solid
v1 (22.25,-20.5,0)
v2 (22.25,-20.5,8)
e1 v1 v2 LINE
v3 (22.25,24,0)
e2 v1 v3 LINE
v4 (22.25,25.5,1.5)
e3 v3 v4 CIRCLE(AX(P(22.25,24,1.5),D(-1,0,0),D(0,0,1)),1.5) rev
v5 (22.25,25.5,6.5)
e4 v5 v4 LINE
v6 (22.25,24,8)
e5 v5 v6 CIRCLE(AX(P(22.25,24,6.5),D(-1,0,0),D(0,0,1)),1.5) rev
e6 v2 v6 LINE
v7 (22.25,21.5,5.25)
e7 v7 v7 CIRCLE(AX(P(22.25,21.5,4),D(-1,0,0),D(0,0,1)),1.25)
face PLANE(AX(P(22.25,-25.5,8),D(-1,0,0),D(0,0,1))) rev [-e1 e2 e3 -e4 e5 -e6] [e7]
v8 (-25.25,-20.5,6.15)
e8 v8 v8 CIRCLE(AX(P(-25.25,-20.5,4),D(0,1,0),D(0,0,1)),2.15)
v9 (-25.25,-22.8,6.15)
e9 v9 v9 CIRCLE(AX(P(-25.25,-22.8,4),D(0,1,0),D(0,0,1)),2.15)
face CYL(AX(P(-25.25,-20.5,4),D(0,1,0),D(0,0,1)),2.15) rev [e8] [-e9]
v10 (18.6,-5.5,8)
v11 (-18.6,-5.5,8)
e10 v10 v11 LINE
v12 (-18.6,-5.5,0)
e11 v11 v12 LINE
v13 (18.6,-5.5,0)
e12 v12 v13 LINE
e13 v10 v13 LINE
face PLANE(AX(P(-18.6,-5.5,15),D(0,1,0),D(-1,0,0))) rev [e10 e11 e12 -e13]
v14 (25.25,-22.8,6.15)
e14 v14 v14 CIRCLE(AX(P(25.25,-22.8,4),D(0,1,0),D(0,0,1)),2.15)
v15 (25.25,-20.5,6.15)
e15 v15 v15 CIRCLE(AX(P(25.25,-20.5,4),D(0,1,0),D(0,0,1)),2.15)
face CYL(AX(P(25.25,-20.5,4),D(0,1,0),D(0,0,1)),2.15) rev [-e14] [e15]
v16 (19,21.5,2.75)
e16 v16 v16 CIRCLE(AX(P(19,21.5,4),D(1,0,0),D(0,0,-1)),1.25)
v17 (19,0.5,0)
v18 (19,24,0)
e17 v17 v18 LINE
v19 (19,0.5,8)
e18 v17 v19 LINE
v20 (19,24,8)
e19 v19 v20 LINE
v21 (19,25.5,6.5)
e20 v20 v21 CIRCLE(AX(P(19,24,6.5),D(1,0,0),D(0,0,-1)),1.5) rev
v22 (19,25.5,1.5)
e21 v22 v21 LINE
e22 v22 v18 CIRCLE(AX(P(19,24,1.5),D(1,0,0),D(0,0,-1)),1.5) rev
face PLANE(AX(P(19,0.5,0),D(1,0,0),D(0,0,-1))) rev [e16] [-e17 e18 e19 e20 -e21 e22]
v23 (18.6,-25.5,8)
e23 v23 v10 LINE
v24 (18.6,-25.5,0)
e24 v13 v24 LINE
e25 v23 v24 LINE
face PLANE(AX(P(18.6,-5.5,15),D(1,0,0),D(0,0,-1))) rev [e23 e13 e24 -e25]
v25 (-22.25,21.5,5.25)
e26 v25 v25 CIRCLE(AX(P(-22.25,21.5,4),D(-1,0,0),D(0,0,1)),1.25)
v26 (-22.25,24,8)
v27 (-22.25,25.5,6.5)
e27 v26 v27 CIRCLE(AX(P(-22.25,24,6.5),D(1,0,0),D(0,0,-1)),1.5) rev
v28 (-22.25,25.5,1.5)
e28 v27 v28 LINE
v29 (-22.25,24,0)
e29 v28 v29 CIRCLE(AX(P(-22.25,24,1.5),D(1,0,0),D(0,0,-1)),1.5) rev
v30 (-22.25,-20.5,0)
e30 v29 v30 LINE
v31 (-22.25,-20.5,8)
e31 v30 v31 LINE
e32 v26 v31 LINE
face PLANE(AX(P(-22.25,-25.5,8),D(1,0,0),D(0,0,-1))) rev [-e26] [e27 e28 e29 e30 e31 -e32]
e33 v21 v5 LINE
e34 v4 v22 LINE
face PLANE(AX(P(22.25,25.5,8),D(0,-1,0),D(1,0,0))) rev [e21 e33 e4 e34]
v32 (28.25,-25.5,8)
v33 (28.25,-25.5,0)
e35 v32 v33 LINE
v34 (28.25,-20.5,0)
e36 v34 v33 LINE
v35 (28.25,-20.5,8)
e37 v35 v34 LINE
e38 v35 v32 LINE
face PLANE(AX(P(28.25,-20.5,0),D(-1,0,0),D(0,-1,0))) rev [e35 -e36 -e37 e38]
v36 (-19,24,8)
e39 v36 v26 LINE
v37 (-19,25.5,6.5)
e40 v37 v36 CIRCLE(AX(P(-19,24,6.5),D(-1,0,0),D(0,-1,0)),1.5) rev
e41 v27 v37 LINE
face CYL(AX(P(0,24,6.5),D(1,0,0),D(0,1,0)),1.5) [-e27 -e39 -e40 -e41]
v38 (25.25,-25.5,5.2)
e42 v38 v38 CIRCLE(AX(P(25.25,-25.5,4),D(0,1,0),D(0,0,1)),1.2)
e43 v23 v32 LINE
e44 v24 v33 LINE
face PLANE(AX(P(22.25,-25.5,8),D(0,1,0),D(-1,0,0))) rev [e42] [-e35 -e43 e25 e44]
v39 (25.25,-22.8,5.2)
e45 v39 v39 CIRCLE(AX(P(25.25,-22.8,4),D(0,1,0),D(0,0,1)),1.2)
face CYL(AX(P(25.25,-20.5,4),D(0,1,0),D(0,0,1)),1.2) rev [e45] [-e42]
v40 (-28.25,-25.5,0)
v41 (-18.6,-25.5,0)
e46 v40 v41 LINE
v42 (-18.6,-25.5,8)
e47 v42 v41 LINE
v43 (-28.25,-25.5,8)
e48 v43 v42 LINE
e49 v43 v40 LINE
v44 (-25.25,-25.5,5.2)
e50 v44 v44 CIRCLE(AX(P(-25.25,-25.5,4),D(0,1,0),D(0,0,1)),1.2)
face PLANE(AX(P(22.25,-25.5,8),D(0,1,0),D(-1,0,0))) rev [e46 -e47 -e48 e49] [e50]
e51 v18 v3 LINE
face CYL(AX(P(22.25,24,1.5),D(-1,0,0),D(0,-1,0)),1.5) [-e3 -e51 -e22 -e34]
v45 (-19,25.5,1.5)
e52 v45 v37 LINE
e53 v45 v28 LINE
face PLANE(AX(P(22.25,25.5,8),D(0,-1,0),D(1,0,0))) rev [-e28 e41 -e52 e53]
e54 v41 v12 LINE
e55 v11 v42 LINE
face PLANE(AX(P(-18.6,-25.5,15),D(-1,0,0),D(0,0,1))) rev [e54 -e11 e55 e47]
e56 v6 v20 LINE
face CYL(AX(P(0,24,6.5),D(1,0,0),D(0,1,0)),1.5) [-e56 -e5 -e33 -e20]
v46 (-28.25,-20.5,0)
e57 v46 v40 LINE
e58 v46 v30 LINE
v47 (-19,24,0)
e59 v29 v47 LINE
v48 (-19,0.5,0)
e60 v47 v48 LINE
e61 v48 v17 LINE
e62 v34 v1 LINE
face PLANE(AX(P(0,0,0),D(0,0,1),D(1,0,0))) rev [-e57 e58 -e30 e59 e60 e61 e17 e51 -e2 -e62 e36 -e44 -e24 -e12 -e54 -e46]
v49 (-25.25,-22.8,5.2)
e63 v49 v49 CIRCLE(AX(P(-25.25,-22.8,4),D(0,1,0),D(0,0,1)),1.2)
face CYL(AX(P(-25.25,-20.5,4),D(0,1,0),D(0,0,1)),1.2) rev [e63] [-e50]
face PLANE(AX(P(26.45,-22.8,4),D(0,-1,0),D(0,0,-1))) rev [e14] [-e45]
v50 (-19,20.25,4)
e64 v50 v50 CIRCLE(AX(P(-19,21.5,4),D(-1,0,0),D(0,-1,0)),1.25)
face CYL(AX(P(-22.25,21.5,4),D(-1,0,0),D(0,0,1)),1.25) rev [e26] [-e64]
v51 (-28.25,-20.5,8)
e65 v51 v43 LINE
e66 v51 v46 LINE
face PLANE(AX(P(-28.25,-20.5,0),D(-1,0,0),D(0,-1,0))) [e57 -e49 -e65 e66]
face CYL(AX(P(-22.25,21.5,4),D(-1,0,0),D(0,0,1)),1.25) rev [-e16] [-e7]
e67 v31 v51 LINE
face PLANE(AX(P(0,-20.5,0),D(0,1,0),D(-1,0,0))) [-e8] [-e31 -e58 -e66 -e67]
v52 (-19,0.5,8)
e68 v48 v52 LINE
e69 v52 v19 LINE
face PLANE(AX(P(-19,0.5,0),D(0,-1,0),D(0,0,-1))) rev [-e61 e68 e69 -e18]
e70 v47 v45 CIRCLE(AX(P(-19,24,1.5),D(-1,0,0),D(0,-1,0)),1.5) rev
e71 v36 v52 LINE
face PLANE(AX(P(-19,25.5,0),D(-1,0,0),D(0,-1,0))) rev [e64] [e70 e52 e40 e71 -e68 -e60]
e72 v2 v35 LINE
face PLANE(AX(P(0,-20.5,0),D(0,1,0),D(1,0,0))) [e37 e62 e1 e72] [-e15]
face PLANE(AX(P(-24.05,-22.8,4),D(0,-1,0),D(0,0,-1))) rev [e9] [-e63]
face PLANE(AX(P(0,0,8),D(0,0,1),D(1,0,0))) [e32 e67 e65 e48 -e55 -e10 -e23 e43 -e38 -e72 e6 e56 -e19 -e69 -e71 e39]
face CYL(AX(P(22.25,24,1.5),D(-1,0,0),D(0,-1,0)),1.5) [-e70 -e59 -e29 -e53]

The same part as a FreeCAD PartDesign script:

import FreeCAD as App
import Part
import Sketcher


def edges_at(feature, points):
    """Names of the edges that pass closest to the given points."""
    edges = feature.Shape.Edges
    near = lambda p: min(range(len(edges)), key=lambda i: edges[i].distToShape(Part.Vertex(*p))[0])
    return sorted({f"Edge{near(p) + 1}" for p in points})


def add_polygon(sketch, points):
    """Adds a closed chain of lines whose ends are joined by coincident constraints."""
    first, n = sketch.GeometryCount, len(points)
    for a, b in zip(points, points[1:] + points[:1]):
        sketch.addGeometry(Part.LineSegment(App.Vector(*a, 0), App.Vector(*b, 0)), False)
    for i in range(n):
        sketch.addConstraint(Sketcher.Constraint("Coincident", first + i, 2, first + (i + 1) % n, 1))

doc = App.newDocument("Part")
body = doc.addObject("PartDesign::Body", "Body")

# Sketch on XY plane
sketch1 = body.newObject("Sketcher::SketchObject", "Sketch")
sketch1.AttachmentSupport = (doc.getObject("XY_Plane"), [""])
sketch1.MapMode = "FlatFace"
add_polygon(sketch1, [(-22.25, 25.5), (-22.25, -25.5), (22.25, -25.5), (22.25, 25.5)])  # lines 0-3
sketch1.addConstraint([
    Sketcher.Constraint("Vertical", 0),
    Sketcher.Constraint("Horizontal", 1),
    Sketcher.Constraint("Vertical", 2),
    Sketcher.Constraint("Horizontal", 3),
    Sketcher.Constraint("Symmetric", 0, 2, 2, 2, -1, 1),
    Sketcher.Constraint("DistanceY", 0, 2, 0, 1, 51.0),
    Sketcher.Constraint("DistanceX", 1, 1, 1, 2, 44.5),
])
pad1 = body.newObject("PartDesign::Pad", "Pad")
pad1.Profile = sketch1
pad1.Length = 8

# Sketch on XY plane
sketch2 = body.newObject("Sketcher::SketchObject", "Sketch001")
sketch2.AttachmentSupport = (doc.getObject("XY_Plane"), [""])
sketch2.MapMode = "FlatFace"
sketch2.AttachmentOffset = App.Placement(App.Vector(0, 0, 8), App.Rotation())
add_polygon(sketch2, [(-19, 25.5), (-19, 0.5), (19, 0.5), (19, 25.5)])  # lines 0-3
sketch2.addConstraint([
    Sketcher.Constraint("Vertical", 0),
    Sketcher.Constraint("Horizontal", 1),
    Sketcher.Constraint("Vertical", 2),
    Sketcher.Constraint("Horizontal", 3),
    Sketcher.Constraint("DistanceX", 1, 1, 1, 2, 38.0),
    Sketcher.Constraint("DistanceY", 0, 2, 0, 1, 25.0),
    Sketcher.Constraint("DistanceX", 0, 2, -1, 1, 19.0),
    Sketcher.Constraint("DistanceY", -1, 1, 0, 2, 0.5),
])
pocket1 = body.newObject("PartDesign::Pocket", "Pocket")
pocket1.Profile = sketch2
pocket1.Type = "ThroughAll"

# Sketch on YZ plane
sketch3 = body.newObject("Sketcher::SketchObject", "Sketch002")
sketch3.AttachmentSupport = (doc.getObject("YZ_Plane"), [""])
sketch3.MapMode = "FlatFace"
sketch3.AttachmentOffset = App.Placement(App.Vector(0, 0, -22.25), App.Rotation())
sketch3.addGeometry(Part.Circle(App.Vector(21.5, 4, 0), App.Vector(0, 0, 1), 1.25), False)
sketch3.addConstraint([
    Sketcher.Constraint("Diameter", 0, 2.5),
    Sketcher.Constraint("DistanceY", -1, 1, 0, 3, 4.0),
    Sketcher.Constraint("DistanceX", -1, 1, 0, 3, 21.5),
])
doc.recompute()
hole = body.newObject("PartDesign::Hole", "Hole")
hole.Profile = sketch3
hole.ThreadType = "None"
hole.Diameter = 2.5
hole.DepthType = "ThroughAll"
hole.Reversed = True
doc.recompute()

fillet = body.newObject("PartDesign::Fillet", "Fillet")
fillet.Base = (hole, edges_at(hole, [
    (20.625, 25.5, 8),
    (-20.625, 25.5, 0),
    (-20.625, 25.5, 8),
    (20.625, 25.5, 0),
]))
fillet.Radius = 1.5

# Sketch on XY plane
sketch4 = body.newObject("Sketcher::SketchObject", "Sketch003")
sketch4.AttachmentSupport = (doc.getObject("XY_Plane"), [""])
sketch4.MapMode = "FlatFace"
add_polygon(sketch4, [(18.6, -5.5), (18.6, -25.5), (-18.6, -25.5), (-18.6, -5.5)])  # lines 0-3
sketch4.addConstraint([
    Sketcher.Constraint("Vertical", 0),
    Sketcher.Constraint("Horizontal", 1),
    Sketcher.Constraint("Vertical", 2),
    Sketcher.Constraint("Horizontal", 3),
    Sketcher.Constraint("DistanceY", 0, 2, 0, 1, 20.0),
    Sketcher.Constraint("DistanceX", 1, 2, 1, 1, 37.2),
    Sketcher.Constraint("DistanceX", -1, 1, 0, 2, 18.6),
    Sketcher.Constraint("DistanceY", 0, 2, -1, 1, 25.5),
])
pocket2 = body.newObject("PartDesign::Pocket", "Pocket001")
pocket2.Profile = sketch4
pocket2.Length = 15
pocket2.Reversed = True

# Sketch on XZ plane
sketch5 = body.newObject("Sketcher::SketchObject", "Sketch004")
sketch5.AttachmentSupport = (doc.getObject("XZ_Plane"), [""])
sketch5.MapMode = "FlatFace"
sketch5.AttachmentOffset = App.Placement(App.Vector(0, 0, 25.5), App.Rotation())
add_polygon(sketch5, [(-28.25, 8), (-28.25, 0), (-22.25, 0), (-22.25, 8)])  # lines 0-3
sketch5.addConstraint([
    Sketcher.Constraint("Vertical", 0),
    Sketcher.Constraint("Horizontal", 1),
    Sketcher.Constraint("Vertical", 2),
    Sketcher.Constraint("Horizontal", 3),
    Sketcher.Constraint("PointOnObject", 0, 2, -1),
    Sketcher.Constraint("DistanceX", 1, 1, 1, 2, 6.0),
    Sketcher.Constraint("DistanceY", 0, 2, 0, 1, 8.0),
    Sketcher.Constraint("DistanceX", 0, 2, -1, 1, 28.25),
])
pad2 = body.newObject("PartDesign::Pad", "Pad001")
pad2.Profile = sketch5
pad2.Length = 5
pad2.Reversed = True
doc.recompute()

mirrored = body.newObject("PartDesign::Mirrored", "Mirrored")
mirrored.Originals = [pad2]
mirrored.MirrorPlane = (doc.getObject("YZ_Plane"), [""])
body.Tip = mirrored

# Sketch on XZ plane
sketch6 = body.newObject("Sketcher::SketchObject", "Sketch005")
sketch6.AttachmentSupport = (doc.getObject("XZ_Plane"), [""])
sketch6.MapMode = "FlatFace"
sketch6.AttachmentOffset = App.Placement(App.Vector(0, 0, 20.5), App.Rotation())
sketch6.addGeometry(Part.Circle(App.Vector(-25.25, 4, 0), App.Vector(0, 0, 1), 1.2), False)
sketch6.addConstraint([
    Sketcher.Constraint("Diameter", 0, 2.4),
    Sketcher.Constraint("DistanceY", -1, 1, 0, 3, 4.0),
    Sketcher.Constraint("DistanceX", 0, 3, -1, 1, 25.25),
])
doc.recompute()
hole2 = body.newObject("PartDesign::Hole", "Hole001")
hole2.Profile = sketch6
hole2.ThreadType = "None"
hole2.Diameter = 2.4
hole2.DepthType = "ThroughAll"
hole2.HoleCutType = "Counterbore"
hole2.HoleCutDiameter = 4.3
hole2.HoleCutDepth = 2.3
hole2.Reversed = True
doc.recompute()

mirrored2 = body.newObject("PartDesign::Mirrored", "Mirrored001")
mirrored2.Originals = [hole2]
mirrored2.MirrorPlane = (doc.getObject("YZ_Plane"), [""])
body.Tip = mirrored2

doc.recompute()
